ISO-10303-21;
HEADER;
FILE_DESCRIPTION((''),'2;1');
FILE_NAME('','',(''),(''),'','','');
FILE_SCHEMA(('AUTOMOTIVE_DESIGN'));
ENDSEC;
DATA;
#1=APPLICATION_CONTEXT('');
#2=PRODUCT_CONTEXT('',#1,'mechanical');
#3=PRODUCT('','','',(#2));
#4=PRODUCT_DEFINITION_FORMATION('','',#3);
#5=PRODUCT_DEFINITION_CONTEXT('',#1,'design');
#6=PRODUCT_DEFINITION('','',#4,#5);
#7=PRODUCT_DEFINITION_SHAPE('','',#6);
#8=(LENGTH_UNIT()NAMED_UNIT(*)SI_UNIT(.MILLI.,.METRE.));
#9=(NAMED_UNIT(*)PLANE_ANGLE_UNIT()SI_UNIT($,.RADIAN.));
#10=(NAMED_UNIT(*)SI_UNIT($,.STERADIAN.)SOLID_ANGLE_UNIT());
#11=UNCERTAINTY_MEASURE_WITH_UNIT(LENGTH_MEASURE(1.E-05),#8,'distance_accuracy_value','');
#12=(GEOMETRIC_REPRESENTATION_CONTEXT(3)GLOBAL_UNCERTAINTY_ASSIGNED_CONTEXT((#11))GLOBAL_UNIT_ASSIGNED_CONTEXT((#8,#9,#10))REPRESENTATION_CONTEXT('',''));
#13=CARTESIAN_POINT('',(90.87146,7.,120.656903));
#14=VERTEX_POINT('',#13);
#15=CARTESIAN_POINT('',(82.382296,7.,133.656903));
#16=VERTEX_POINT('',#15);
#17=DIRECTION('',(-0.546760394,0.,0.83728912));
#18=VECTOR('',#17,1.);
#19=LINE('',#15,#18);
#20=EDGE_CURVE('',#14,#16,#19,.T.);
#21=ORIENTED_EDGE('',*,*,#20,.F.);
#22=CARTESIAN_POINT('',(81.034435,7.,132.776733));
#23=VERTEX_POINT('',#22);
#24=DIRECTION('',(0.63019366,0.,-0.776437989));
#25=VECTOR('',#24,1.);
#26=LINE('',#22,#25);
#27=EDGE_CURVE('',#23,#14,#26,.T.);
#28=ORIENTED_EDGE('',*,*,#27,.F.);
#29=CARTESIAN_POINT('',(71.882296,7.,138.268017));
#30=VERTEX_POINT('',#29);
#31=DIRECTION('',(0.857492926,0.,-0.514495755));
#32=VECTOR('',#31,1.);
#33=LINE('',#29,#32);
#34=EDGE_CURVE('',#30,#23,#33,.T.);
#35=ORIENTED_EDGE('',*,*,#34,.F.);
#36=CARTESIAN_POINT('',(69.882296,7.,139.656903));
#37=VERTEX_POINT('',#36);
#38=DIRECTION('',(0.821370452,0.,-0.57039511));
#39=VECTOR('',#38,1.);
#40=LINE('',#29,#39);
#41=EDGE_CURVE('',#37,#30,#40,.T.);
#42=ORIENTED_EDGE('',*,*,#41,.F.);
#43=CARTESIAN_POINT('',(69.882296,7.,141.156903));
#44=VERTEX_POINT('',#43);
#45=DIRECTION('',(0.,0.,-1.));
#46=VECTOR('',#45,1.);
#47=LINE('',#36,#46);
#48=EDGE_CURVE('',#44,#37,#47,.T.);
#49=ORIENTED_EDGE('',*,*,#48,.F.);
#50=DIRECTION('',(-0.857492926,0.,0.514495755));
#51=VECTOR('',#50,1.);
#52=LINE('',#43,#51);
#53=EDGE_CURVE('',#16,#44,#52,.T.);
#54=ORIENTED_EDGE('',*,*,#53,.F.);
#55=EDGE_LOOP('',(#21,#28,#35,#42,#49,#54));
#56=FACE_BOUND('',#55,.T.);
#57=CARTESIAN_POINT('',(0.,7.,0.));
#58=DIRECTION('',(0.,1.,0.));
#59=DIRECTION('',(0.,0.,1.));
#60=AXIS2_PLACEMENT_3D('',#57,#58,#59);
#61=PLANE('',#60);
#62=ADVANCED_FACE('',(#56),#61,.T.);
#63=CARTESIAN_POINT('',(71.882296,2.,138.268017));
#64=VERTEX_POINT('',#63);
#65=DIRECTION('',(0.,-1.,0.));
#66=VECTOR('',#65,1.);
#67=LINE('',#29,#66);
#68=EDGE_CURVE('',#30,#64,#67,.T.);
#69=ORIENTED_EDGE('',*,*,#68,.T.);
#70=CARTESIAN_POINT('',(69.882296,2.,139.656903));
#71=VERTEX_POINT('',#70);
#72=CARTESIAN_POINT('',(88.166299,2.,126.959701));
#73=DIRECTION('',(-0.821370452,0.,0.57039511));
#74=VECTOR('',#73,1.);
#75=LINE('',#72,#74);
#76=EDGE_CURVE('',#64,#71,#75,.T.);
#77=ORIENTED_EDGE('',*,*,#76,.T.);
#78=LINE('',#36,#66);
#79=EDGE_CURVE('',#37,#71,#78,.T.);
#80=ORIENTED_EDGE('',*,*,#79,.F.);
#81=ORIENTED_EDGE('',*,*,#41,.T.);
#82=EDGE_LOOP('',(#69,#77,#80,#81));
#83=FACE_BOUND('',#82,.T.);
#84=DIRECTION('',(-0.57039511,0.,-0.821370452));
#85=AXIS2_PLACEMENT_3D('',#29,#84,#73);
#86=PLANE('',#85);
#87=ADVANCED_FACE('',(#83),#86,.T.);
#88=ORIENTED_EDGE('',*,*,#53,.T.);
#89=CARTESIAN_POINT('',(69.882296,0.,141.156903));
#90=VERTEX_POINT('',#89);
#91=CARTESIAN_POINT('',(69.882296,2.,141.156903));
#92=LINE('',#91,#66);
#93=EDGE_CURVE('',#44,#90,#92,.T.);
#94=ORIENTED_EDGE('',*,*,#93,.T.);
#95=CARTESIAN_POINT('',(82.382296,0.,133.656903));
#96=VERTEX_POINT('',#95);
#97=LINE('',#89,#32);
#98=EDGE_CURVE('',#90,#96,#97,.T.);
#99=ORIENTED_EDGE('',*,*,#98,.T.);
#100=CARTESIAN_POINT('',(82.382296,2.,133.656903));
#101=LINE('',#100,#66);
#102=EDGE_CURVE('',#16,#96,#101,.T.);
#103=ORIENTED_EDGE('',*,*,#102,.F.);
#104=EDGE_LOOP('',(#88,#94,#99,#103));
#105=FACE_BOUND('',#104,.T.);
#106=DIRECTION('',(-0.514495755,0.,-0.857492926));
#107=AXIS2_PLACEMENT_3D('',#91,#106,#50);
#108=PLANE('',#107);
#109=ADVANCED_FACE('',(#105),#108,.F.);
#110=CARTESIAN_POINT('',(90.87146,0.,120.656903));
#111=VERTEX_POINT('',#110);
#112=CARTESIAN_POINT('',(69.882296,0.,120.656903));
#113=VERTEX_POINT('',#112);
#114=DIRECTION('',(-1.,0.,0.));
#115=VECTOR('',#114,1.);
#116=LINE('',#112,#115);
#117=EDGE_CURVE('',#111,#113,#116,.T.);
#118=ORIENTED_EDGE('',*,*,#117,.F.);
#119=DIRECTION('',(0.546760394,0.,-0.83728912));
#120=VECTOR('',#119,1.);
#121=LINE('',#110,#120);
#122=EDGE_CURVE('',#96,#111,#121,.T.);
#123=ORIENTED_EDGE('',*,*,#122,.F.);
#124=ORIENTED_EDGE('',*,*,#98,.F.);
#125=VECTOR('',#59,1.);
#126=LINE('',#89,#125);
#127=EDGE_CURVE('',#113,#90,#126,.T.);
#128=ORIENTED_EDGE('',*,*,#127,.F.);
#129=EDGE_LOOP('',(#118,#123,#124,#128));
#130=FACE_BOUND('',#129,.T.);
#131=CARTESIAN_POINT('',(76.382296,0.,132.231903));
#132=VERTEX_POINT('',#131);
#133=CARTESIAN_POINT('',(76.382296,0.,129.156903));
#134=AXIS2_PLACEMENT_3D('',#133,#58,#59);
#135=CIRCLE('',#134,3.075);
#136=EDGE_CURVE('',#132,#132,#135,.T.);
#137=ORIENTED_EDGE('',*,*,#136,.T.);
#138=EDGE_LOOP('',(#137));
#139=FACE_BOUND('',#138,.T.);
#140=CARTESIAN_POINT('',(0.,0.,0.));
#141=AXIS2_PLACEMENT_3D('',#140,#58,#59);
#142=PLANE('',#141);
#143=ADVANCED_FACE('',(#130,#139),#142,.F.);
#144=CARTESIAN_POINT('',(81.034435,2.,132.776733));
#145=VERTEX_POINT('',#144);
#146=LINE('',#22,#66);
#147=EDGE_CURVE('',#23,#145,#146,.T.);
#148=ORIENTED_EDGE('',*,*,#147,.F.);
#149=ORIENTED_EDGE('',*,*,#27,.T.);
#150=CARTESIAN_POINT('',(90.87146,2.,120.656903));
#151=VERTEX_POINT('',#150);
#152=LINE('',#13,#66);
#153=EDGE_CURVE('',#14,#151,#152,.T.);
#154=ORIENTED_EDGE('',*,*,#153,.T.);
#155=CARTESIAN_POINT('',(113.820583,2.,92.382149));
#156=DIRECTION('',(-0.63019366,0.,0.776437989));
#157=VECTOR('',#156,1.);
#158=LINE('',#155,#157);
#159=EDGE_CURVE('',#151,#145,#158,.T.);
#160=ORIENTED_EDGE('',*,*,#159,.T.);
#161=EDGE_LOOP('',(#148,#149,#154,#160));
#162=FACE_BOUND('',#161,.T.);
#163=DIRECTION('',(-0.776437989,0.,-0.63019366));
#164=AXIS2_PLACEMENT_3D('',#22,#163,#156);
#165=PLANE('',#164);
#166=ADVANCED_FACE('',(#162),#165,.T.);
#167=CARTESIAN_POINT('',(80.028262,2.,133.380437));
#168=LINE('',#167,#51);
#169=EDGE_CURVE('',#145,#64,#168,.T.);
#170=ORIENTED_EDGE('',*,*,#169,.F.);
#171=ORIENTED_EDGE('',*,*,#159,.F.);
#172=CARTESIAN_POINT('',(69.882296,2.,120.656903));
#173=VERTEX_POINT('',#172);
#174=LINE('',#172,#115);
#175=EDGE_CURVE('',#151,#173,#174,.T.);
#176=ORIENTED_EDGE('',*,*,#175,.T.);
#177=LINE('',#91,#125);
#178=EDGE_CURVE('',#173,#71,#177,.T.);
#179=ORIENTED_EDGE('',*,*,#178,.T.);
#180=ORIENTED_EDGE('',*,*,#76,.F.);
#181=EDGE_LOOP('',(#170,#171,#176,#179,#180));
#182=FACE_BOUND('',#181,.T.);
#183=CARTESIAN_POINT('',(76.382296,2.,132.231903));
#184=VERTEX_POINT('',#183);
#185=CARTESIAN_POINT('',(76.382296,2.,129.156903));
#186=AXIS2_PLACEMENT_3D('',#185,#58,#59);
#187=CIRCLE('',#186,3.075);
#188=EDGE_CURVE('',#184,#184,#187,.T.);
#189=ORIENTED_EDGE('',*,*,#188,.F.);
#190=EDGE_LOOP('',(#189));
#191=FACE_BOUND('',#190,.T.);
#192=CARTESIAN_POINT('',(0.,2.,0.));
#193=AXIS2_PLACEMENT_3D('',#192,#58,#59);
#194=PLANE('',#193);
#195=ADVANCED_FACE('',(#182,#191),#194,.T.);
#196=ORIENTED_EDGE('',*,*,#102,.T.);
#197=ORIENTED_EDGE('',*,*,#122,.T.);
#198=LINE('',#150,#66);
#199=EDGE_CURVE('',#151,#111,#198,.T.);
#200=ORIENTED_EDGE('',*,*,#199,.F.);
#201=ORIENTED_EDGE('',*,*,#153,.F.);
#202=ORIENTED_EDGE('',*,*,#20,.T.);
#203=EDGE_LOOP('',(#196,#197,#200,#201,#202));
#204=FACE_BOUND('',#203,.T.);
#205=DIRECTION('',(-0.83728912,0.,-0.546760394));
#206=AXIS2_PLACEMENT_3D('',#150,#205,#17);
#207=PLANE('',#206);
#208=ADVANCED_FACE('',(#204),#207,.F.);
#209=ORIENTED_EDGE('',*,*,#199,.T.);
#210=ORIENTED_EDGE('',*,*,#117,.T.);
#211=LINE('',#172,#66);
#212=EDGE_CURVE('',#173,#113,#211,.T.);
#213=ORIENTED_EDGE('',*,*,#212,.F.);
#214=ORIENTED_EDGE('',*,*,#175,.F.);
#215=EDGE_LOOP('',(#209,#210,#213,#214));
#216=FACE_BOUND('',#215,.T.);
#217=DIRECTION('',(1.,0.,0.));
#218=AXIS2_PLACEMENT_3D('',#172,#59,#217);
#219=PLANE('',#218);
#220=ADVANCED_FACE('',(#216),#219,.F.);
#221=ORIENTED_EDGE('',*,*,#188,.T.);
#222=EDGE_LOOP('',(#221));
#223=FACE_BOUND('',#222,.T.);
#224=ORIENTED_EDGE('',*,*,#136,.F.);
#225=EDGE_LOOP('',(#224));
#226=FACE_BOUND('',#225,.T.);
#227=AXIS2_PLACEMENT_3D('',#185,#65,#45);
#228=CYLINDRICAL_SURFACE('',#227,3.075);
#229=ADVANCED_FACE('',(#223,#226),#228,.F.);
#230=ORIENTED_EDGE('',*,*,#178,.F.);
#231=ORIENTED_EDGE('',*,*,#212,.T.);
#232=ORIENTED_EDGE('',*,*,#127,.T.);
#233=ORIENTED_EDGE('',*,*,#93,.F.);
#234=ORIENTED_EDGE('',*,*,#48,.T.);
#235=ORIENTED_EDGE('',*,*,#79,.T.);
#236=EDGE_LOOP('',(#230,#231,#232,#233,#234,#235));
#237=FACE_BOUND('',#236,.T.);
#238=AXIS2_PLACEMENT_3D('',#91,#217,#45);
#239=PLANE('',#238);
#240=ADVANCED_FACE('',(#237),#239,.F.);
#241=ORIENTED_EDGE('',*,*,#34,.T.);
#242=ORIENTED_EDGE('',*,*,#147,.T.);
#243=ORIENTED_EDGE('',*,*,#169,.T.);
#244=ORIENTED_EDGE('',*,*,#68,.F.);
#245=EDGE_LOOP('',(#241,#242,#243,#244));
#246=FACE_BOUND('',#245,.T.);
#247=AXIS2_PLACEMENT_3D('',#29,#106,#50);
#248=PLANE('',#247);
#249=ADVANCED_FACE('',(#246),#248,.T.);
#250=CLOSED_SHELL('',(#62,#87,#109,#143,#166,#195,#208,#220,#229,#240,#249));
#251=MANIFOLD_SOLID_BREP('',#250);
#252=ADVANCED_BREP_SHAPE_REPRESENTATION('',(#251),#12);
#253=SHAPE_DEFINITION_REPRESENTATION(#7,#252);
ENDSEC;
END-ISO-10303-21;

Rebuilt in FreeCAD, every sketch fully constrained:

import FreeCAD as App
import Part
import Sketcher
Q = App.Units.Quantity


def add_polygon(sketch, points):
    """Adds a closed chain of lines whose ends are joined by coincident constraints."""
    first, n = sketch.GeometryCount, len(points)
    for a, b in zip(points, points[1:] + points[:1]):
        sketch.addGeometry(Part.LineSegment(App.Vector(*a, 0), App.Vector(*b, 0)), False)
    for i in range(n):
        sketch.addConstraint(Sketcher.Constraint("Coincident", first + i, 2, first + (i + 1) % n, 1))

doc = App.newDocument("Part")
body = doc.addObject("PartDesign::Body", "Body")

# Sketch on XZ plane
sketch1 = doc.addObject("Sketcher::SketchObject", "Sketch")
body.addObject(sketch1)
sketch1.AttachmentSupport = (doc.XZ_Plane, [""])
sketch1.MapMode = "FlatFace"
add_polygon(sketch1, [(69.9, 141.2), (82.4, 133.7), (90.9, 120.7), (69.9, 120.7)])  # lines 0-3
sketch1.addGeometry(Part.Circle(App.Vector(76.4, 129.2, 0), App.Vector(0, 0, 1), 3.1), False)  # 4
sketch1.addConstraint([
    Sketcher.Constraint("Horizontal", 2),
    Sketcher.Constraint("Vertical", 3),
    Sketcher.Constraint("Diameter", 4, Q("6.15 mm")),
    Sketcher.Constraint("DistanceY", 3, 1, 3, 2, Q("20.5 mm")),
    Sketcher.Constraint("DistanceX", 4, 3, 0, 2, Q("6 mm")),
    Sketcher.Constraint("DistanceY", 1, 2, 0, 2, Q("13 mm")),
    Sketcher.Constraint("DistanceY", 4, 3, 3, 2, Q("12 mm")),
    Sketcher.Constraint("DistanceX", 2, 2, 4, 3, Q("6.5 mm")),
    Sketcher.Constraint("DistanceX", 2, 2, 2, 1, Q("20.989165 mm")),
    Sketcher.Constraint("DistanceX", -1, 1, 1, 2, Q("90.87146 mm")),
    Sketcher.Constraint("DistanceY", -1, 1, 4, 3, Q("129.156903 mm")),
])
pad1 = doc.addObject("PartDesign::Pad", "Pad")
body.addObject(pad1)
pad1.Profile = sketch1
pad1.Length = 2
pad1.Reversed = True

# Sketch on XZ plane
sketch2 = doc.addObject("Sketcher::SketchObject", "Sketch001")
body.addObject(sketch2)
sketch2.AttachmentSupport = (doc.XZ_Plane, [""])
sketch2.MapMode = "FlatFace"
add_polygon(sketch2, [(82.4, 133.7), (69.9, 141.2), (69.9, 139.7), (71.9, 138.3), (81, 132.8), (90.9, 120.7)])  # lines 0-5
sketch2.addConstraint([
    Sketcher.Constraint("Vertical", 1),
    Sketcher.Constraint("Parallel", 0, 3),
    Sketcher.Constraint("DistanceY", 1, 2, 1, 1, Q("1.5 mm")),
    Sketcher.Constraint("DistanceX", 1, 2, 2, 2, Q("2 mm")),
    Sketcher.Constraint("DistanceY", 4, 2, 1, 2, Q("19 mm")),
    Sketcher.Constraint("DistanceY", 5, 2, 1, 2, Q("6 mm")),
    Sketcher.Constraint("DistanceX", 2, 2, 5, 2, Q("10.5 mm")),
    Sketcher.Constraint("DistanceX", -1, 1, 4, 2, Q("90.87146 mm")),
    Sketcher.Constraint("DistanceX", 2, 2, 3, 2, Q("9.152139 mm")),
    Sketcher.Constraint("DistanceY", 3, 2, 1, 2, Q("6.88017 mm")),
    Sketcher.Constraint("Distance", 4, Q("15.609527 mm")),
    Sketcher.Constraint("DistanceY", -1, 1, 0, 2, Q("141.156903 mm")),
])
pad2 = doc.addObject("PartDesign::Pad", "Pad001")
body.addObject(pad2)
pad2.Profile = sketch2
pad2.Length = 7
pad2.Reversed = True

doc.recompute()
